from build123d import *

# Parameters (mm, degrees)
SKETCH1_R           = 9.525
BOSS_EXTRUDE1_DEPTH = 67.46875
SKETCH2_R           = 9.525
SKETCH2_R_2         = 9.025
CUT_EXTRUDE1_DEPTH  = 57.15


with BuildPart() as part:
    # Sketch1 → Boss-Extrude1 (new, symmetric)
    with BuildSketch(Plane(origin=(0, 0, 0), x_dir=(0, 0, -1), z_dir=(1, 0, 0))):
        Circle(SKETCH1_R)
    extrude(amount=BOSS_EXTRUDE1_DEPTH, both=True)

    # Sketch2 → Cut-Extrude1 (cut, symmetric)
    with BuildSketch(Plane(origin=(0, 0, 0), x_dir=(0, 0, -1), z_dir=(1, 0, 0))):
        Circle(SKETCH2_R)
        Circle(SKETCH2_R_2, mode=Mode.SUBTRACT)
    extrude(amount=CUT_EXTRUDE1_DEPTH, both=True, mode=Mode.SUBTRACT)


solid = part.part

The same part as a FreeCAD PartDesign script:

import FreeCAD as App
import Part
import Sketcher
from FreeCAD import Vector
Q = App.Units.Quantity

doc = App.newDocument("Part")
body = doc.addObject("PartDesign::Body", "Body")

# Sketch on YZ plane
sketch1 = body.newObject("Sketcher::SketchObject", "Sketch")
sketch1.AttachmentSupport = (doc.getObject("YZ_Plane"), [""])
sketch1.MapMode = "FlatFace"
sketch1.addGeometry(Part.Circle(Vector(0, 0, 0), Vector(0, 0, 1), 9.525), False)
sketch1.addConstraint([
    Sketcher.Constraint("Coincident", 0, 3, -1, 1),
    Sketcher.Constraint("Diameter", 0, Q("0.75 in")),
])
pad1 = body.newObject("PartDesign::Pad", "Pad")
pad1.Profile = sketch1
pad1.Length = Q("5.3125 in")
pad1.Midplane = True

# Sketch on YZ plane
sketch2 = body.newObject("Sketcher::SketchObject", "Sketch001")
sketch2.AttachmentSupport = (doc.getObject("YZ_Plane"), [""])
sketch2.MapMode = "FlatFace"
sketch2.addGeometry([
    Part.Circle(Vector(0, 0, 0), Vector(0, 0, 1), 9.525),
    Part.Circle(Vector(0, 0, 0), Vector(0, 0, 1), 9.025),
], False)
sketch2.addConstraint([
    Sketcher.Constraint("Coincident", 0, 3, -1, 1),
    Sketcher.Constraint("Coincident", 1, 3, -1, 1),
    Sketcher.Constraint("Diameter", 0, Q("0.75 in")),
    Sketcher.Constraint("Diameter", 1, Q("18.05 mm")),
])
pocket1 = body.newObject("PartDesign::Pocket", "Pocket")
pocket1.Profile = sketch2
pocket1.Length = Q("4.5 in")
pocket1.Midplane = True

doc.recompute()
